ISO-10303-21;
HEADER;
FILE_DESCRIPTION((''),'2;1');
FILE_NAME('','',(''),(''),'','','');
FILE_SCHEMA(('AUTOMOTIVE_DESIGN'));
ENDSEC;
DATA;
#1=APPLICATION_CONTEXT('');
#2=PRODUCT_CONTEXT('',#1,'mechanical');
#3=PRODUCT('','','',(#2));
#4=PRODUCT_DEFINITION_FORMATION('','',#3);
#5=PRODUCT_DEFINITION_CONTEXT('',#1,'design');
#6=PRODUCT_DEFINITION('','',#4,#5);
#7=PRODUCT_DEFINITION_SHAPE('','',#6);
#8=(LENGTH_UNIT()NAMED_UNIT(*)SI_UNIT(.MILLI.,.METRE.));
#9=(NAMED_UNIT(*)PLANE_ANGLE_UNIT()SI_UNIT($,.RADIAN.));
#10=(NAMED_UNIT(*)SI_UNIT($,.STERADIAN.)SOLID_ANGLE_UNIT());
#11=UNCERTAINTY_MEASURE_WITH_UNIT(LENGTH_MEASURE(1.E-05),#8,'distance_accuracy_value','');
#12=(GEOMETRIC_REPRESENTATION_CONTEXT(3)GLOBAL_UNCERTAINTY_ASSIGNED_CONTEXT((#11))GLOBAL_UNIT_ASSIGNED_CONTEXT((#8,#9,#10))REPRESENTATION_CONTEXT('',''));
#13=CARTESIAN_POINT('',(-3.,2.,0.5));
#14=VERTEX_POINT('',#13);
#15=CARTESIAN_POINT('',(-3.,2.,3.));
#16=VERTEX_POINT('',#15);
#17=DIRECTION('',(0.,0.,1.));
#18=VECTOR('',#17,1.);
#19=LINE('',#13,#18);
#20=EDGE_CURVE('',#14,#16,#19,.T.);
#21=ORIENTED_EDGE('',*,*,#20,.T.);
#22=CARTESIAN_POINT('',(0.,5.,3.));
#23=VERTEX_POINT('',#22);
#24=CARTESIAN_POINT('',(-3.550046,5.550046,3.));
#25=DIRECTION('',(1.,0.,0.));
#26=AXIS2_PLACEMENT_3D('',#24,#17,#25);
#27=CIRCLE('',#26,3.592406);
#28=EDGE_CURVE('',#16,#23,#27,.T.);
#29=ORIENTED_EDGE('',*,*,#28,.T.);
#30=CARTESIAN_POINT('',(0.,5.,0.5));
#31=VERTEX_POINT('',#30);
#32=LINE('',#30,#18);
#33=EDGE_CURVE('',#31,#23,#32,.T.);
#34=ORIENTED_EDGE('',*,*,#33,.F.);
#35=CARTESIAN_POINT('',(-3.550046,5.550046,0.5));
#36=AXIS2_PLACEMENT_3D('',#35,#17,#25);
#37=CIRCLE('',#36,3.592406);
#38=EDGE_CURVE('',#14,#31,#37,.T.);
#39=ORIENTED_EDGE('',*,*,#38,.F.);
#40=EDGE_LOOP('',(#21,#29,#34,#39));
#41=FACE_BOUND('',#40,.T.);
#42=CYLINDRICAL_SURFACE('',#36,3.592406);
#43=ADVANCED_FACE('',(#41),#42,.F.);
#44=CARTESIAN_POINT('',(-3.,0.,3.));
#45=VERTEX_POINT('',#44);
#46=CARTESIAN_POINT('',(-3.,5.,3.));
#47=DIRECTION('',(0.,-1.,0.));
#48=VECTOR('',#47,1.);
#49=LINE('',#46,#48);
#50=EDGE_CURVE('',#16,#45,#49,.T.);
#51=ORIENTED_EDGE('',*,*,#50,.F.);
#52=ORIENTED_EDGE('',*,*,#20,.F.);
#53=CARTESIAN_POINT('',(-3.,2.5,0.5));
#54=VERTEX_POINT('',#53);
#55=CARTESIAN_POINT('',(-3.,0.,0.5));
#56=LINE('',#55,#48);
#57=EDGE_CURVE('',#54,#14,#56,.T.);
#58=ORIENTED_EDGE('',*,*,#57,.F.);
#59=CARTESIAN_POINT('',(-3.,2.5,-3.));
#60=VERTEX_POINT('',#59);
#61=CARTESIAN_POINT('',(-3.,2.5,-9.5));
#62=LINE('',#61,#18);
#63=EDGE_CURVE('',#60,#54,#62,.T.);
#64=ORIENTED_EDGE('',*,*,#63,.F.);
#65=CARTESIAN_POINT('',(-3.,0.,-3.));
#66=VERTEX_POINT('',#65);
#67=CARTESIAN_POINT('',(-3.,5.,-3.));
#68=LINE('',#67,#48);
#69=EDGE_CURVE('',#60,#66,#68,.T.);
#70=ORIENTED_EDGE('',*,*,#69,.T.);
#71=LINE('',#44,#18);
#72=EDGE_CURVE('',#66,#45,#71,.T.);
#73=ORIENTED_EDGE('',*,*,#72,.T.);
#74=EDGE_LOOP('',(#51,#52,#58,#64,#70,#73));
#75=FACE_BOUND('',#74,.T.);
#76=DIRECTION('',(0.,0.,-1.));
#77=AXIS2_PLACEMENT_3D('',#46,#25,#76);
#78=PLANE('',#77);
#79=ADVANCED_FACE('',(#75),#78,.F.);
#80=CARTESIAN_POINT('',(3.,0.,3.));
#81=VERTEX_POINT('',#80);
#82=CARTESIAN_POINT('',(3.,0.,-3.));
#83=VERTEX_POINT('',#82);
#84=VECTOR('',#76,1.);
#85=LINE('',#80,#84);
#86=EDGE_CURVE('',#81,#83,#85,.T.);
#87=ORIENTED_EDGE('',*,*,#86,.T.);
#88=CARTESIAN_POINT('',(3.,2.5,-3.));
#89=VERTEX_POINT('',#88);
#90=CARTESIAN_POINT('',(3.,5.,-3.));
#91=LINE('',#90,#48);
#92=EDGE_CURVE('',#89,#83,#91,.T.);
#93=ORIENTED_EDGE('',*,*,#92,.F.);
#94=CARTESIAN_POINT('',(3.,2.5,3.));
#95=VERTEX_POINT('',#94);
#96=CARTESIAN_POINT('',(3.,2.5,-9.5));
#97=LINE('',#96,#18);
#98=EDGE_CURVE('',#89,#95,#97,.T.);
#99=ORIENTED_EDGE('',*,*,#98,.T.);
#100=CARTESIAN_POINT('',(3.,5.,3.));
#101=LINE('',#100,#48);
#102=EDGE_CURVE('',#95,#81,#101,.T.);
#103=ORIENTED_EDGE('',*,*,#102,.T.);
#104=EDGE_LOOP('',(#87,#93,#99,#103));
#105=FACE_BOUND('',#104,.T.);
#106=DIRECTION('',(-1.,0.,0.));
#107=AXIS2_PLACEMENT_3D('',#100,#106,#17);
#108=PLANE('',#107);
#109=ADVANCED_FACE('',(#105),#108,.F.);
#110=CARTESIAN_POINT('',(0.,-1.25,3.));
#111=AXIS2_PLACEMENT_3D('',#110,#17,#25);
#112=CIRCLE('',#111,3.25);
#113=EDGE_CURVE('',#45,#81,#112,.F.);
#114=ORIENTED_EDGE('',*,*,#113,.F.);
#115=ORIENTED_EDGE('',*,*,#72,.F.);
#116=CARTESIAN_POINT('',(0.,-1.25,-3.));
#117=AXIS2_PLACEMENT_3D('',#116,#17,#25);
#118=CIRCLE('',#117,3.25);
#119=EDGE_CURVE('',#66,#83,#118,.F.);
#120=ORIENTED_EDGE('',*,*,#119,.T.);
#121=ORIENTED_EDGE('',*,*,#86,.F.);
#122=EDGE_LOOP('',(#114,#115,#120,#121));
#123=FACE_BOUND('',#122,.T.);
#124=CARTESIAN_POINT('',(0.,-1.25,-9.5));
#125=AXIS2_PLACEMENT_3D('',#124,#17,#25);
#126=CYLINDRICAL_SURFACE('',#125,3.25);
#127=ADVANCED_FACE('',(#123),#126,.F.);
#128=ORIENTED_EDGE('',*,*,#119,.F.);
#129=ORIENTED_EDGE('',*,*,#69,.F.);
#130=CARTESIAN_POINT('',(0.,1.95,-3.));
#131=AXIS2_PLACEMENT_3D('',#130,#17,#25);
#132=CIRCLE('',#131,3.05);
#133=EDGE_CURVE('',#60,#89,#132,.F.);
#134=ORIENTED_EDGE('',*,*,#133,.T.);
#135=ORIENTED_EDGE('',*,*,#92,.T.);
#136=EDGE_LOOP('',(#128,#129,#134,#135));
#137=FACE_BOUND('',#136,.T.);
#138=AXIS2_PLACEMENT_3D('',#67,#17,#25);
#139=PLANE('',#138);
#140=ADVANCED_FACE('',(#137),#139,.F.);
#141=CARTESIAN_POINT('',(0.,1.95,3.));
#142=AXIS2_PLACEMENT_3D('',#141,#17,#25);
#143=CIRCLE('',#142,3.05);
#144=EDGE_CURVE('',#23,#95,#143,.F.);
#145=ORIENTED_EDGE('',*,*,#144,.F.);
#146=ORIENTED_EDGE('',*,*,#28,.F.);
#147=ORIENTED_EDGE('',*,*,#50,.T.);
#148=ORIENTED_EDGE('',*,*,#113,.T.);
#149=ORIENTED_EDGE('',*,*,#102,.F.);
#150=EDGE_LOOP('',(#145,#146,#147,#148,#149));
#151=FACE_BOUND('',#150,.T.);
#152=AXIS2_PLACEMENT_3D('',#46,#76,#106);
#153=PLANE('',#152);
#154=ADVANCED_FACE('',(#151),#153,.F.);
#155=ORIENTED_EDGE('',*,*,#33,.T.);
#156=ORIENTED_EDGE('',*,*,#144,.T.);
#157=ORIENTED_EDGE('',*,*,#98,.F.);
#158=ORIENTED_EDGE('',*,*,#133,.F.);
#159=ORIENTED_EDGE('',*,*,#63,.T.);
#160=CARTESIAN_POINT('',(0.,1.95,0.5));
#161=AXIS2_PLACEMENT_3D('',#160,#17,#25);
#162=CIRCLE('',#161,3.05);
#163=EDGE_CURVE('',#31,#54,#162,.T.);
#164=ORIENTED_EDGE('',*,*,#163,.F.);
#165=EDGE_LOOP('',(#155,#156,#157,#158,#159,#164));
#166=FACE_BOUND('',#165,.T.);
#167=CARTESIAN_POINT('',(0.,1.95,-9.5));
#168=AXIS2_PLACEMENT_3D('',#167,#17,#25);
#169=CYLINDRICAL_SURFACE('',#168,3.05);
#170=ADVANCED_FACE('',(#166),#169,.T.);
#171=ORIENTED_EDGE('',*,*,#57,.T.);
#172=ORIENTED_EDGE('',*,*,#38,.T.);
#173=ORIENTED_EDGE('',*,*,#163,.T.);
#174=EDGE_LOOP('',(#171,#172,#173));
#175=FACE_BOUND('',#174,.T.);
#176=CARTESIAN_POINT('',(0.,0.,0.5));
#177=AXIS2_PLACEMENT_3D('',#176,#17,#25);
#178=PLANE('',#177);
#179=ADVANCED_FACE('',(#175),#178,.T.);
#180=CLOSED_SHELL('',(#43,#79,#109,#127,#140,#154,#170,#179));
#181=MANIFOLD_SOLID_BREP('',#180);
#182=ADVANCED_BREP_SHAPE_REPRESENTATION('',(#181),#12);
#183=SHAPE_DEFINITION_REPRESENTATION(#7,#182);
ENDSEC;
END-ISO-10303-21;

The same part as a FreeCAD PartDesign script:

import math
import FreeCAD as App
import Part
import Sketcher
Q = App.Units.Quantity


def add_polygon(sketch, points):
    """Adds a closed chain of lines whose ends are joined by coincident constraints."""
    first, n = sketch.GeometryCount, len(points)
    for a, b in zip(points, points[1:] + points[:1]):
        sketch.addGeometry(Part.LineSegment(App.Vector(*a, 0), App.Vector(*b, 0)), False)
    for i in range(n):
        sketch.addConstraint(Sketcher.Constraint("Coincident", first + i, 2, first + (i + 1) % n, 1))

doc = App.newDocument("Part")
params = doc.addObject("Spreadsheet::Sheet", "Params")
for row, (alias, value) in enumerate([
    ("sketch1_width", "6 mm"),
    ("pad1_length", "5 mm"),
    ("sketch2_width", "3 mm"),
    ("sketch2_radius", "3.05 mm"),
    ("sketch2_radius2", "3.25 mm"),
    ("pocket1_length", "12.5 mm"),
    ("sketch3_radius", "3.05 mm"),
    ("sketch3_height", "0.5 mm"),
    ("pocket2_length", "2.5 mm"),
], start=1):
    params.set(f"A{row}", alias)
    params.set(f"B{row}", "=" + value)
    params.setAlias(f"B{row}", alias)

body = doc.addObject("PartDesign::Body", "Body")

# Sketch on XZ plane
sketch1 = body.newObject("Sketcher::SketchObject", "Sketch")
sketch1.AttachmentSupport = (doc.getObject("XZ_Plane"), [""])
sketch1.MapMode = "FlatFace"
add_polygon(sketch1, [(-3, -3), (-3, 3), (3, 3), (3, -3)])  # lines 0-3
sketch1.addConstraint([
    Sketcher.Constraint("Vertical", 0),
    Sketcher.Constraint("Horizontal", 1),
    Sketcher.Constraint("Vertical", 2),
    Sketcher.Constraint("Horizontal", 3),
    Sketcher.Constraint("Symmetric", 0, 2, 2, 2, -1, 1),
    Sketcher.Constraint("Equal", 3, 0),
    Sketcher.Constraint("DistanceX", 1, 1, 1, 2, Q("6 mm")),
])
sketch1.setExpression("Constraints[10]", "Params.sketch1_width")
pad1 = body.newObject("PartDesign::Pad", "Pad")
pad1.Profile = sketch1
pad1.setExpression("Length", "Params.pad1_length")
pad1.Reversed = True

# Sketch on XY plane
sketch2 = body.newObject("Sketcher::SketchObject", "Sketch001")
sketch2.AttachmentSupport = (doc.getObject("XY_Plane"), [""])
sketch2.MapMode = "FlatFace"
sketch2.AttachmentOffset = App.Placement(App.Vector(0, 0, 3), App.Rotation())
sketch2.addGeometry([
    Part.LineSegment(App.Vector(-3, 5, 0), App.Vector(-3, 2.5, 0)),  # 0
    Part.ArcOfCircle(Part.Circle(App.Vector(0, 2, 0), App.Vector(0, 0, 1), 3), math.radians(90), math.radians(170)),  # 1
    Part.LineSegment(App.Vector(0, 5, 0), App.Vector(-3, 5, 0)),  # 2
    Part.ArcOfCircle(Part.Circle(App.Vector(0, 2, 0), App.Vector(0, 0, 1), 3), math.radians(10), math.radians(90)),  # 3
    Part.LineSegment(App.Vector(3, 2.5, 0), App.Vector(3, 5, 0)),  # 4
    Part.LineSegment(App.Vector(3, 5, 0), App.Vector(0, 5, 0)),  # 5
    Part.ArcOfCircle(Part.Circle(App.Vector(0, -1.2, 0), App.Vector(0, 0, 1), 3.2), math.radians(23), math.radians(157)),  # 6
    Part.LineSegment(App.Vector(-3, 0, 0), App.Vector(3, 0, 0)),  # 7
], False)
sketch2.addConstraint([
    Sketcher.Constraint("Coincident", 0, 2, 1, 2),
    Sketcher.Constraint("Tangent", 1, 1, 2, 1),
    Sketcher.Constraint("Coincident", 2, 2, 0, 1),
    Sketcher.Constraint("Coincident", 3, 1, 4, 1),
    Sketcher.Constraint("Coincident", 4, 2, 5, 1),
    Sketcher.Constraint("Tangent", 5, 2, 3, 2),
    Sketcher.Constraint("Coincident", 6, 1, 7, 2),
    Sketcher.Constraint("Coincident", 7, 1, 6, 2),
    Sketcher.Constraint("Vertical", 0),
    Sketcher.Constraint("Horizontal", 2),
    Sketcher.Constraint("Vertical", 4),
    Sketcher.Constraint("Horizontal", 5),
    Sketcher.Constraint("Horizontal", 7),
    Sketcher.Constraint("Coincident", 3, 3, 1, 3),
    Sketcher.Constraint("Equal", 1, 3),
    Sketcher.Constraint("Symmetric", 6, 1, 7, 1, -1, 1),
    Sketcher.Constraint("Symmetric", 0, 2, 3, 1, -2),
    Sketcher.Constraint("Vertical", 4, 2, 6, 1),
    Sketcher.Constraint("DistanceX", 2, 2, 2, 1, Q("3 mm")),
    Sketcher.Constraint("Radius", 1, Q("3.05 mm")),
    Sketcher.Constraint("Radius", 6, Q("3.25 mm")),
    Sketcher.Constraint("DistanceY", -1, 1, 1, 1, Q("5 mm")),
])
sketch2.setExpression("Constraints[18]", "Params.sketch2_width")
sketch2.setExpression("Constraints[19]", "Params.sketch2_radius")
sketch2.setExpression("Constraints[20]", "Params.sketch2_radius2")
pocket1 = body.newObject("PartDesign::Pocket", "Pocket")
pocket1.Profile = sketch2
pocket1.setExpression("Length", "Params.pocket1_length")

# Sketch on XY plane
sketch3 = body.newObject("Sketcher::SketchObject", "Sketch002")
sketch3.AttachmentSupport = (doc.getObject("XY_Plane"), [""])
sketch3.MapMode = "FlatFace"
sketch3.AttachmentOffset = App.Placement(App.Vector(0, 0, 3), App.Rotation())
sketch3.addGeometry([
    Part.ArcOfCircle(Part.Circle(App.Vector(-3.6, 5.6, 0), App.Vector(0, 0, 1), 3.6), math.radians(-81), math.radians(-9)),
    Part.ArcOfCircle(Part.Circle(App.Vector(0, 2, 0), App.Vector(0, 0, 1), 3), math.radians(90), math.radians(170)),
    Part.LineSegment(App.Vector(-3, 2.5, 0), App.Vector(-3, 2, 0)),
], False)
sketch3.addConstraint([
    Sketcher.Constraint("Coincident", 0, 2, 1, 1),
    Sketcher.Constraint("Coincident", 1, 2, 2, 1),
    Sketcher.Constraint("Coincident", 2, 2, 0, 1),
    Sketcher.Constraint("Vertical", 2),
    Sketcher.Constraint("PointOnObject", 1, 3, -2),
    Sketcher.Constraint("PointOnObject", 0, 2, -2),
    Sketcher.Constraint("Radius", 1, Q("3.05 mm")),
    Sketcher.Constraint("DistanceY", 2, 2, 2, 1, Q("0.5 mm")),
    Sketcher.Constraint("DistanceY", -1, 1, 0, 2, Q("5 mm")),
    Sketcher.Constraint("DistanceX", 1, 2, -1, 1, Q("3 mm")),
    Sketcher.Constraint("Radius", 0, Q("3.592406 mm")),
])
sketch3.setExpression("Constraints[6]", "Params.sketch3_radius")
sketch3.setExpression("Constraints[7]", "Params.sketch3_height")
pocket2 = body.newObject("PartDesign::Pocket", "Pocket001")
pocket2.Profile = sketch3
pocket2.setExpression("Length", "Params.pocket2_length")

doc.recompute()
